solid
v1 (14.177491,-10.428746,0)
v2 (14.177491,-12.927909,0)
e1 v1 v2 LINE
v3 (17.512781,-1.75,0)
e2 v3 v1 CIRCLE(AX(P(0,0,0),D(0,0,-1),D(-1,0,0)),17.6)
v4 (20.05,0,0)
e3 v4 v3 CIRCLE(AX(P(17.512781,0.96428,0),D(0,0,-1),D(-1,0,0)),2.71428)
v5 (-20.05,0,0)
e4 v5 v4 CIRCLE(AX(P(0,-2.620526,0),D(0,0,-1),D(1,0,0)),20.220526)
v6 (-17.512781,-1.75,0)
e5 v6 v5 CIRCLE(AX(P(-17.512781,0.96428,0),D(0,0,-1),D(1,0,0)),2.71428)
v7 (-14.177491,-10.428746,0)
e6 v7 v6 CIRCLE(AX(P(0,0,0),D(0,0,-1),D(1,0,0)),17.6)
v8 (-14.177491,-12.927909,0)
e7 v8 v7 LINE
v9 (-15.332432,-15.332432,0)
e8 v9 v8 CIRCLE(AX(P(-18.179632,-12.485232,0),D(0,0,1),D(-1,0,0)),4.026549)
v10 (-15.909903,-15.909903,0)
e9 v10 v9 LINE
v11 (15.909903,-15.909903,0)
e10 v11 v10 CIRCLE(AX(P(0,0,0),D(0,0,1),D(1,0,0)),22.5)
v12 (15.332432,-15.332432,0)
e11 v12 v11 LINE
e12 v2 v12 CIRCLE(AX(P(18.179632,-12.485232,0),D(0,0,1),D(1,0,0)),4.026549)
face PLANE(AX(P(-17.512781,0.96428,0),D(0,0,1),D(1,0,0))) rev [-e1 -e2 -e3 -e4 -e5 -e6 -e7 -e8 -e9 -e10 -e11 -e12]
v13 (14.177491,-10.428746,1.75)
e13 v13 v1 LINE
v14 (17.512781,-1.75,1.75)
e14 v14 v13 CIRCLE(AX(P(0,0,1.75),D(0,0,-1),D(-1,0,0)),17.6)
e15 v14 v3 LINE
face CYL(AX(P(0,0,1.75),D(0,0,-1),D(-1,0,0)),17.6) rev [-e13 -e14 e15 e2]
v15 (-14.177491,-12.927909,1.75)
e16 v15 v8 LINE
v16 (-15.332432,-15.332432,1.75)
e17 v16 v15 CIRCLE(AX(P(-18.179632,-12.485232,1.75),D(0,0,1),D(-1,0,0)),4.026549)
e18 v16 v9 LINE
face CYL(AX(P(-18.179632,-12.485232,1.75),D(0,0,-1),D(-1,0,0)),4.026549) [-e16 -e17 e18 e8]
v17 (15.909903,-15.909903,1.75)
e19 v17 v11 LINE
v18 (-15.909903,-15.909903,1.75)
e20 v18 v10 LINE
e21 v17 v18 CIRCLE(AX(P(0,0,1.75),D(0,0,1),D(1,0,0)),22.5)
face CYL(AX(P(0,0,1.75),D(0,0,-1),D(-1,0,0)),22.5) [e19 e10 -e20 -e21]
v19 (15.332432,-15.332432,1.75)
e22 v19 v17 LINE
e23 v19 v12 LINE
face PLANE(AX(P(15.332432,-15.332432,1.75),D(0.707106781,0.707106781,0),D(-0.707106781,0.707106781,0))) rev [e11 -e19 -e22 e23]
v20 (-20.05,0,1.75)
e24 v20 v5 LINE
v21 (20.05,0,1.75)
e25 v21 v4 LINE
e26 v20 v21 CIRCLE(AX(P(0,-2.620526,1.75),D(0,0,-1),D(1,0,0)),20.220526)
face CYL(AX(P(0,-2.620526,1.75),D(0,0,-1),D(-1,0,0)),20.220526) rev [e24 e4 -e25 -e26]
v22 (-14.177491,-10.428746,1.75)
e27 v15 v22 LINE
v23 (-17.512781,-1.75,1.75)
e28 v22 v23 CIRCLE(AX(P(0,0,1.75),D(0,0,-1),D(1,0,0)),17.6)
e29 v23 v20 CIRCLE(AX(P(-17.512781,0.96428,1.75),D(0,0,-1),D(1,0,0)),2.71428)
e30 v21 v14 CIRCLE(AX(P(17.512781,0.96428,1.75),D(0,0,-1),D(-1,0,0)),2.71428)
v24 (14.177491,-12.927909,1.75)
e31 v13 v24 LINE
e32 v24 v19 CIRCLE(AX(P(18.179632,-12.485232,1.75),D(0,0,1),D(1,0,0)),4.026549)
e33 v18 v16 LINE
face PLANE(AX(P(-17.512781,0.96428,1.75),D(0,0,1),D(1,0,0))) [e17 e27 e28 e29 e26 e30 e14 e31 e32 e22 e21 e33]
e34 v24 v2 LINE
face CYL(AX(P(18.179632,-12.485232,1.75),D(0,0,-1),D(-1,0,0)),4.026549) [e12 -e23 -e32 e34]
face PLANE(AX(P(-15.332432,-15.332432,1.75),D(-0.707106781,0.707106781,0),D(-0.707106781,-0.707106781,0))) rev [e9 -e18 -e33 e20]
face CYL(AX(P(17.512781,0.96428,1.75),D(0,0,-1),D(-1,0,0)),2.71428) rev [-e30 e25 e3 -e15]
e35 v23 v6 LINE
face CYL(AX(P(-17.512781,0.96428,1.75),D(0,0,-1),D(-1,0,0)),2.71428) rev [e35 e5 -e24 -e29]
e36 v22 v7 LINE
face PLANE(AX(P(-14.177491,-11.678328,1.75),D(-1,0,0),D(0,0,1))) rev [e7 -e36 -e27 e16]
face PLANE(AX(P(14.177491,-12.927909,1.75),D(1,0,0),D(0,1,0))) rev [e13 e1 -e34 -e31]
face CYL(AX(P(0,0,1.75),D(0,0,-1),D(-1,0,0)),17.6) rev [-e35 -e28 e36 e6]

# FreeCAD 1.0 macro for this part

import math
import FreeCAD as App
import Part
import Sketcher
from FreeCAD import Vector

doc = App.newDocument("Part")
params = doc.addObject("Spreadsheet::Sheet", "Params")
for row, (alias, value) in enumerate([
    ("sketch1_radius", "17.6 mm"),
    ("sketch1_radius2", "22.5 mm"),
    ("pad1_length", "1.75 mm"),
], start=1):
    params.set(f"A{row}", alias)
    params.set(f"B{row}", "=" + value)
    params.setAlias(f"B{row}", alias)

body = doc.addObject("PartDesign::Body", "Body")

sketch1 = body.newObject("Sketcher::SketchObject", "Sketch")
sketch1.AttachmentSupport = (doc.getObject("XY_Plane"), [""])
sketch1.MapMode = "FlatFace"
sketch1.addGeometry([
    Part.LineSegment(Vector(-14.177491, -12.927909, 0), Vector(-14.177491, -10.428746, 0)),
    Part.ArcOfCircle(Part.Circle(Vector(0, 0, 0), Vector(0, 0, 1), 17.6), math.radians(-174.293547), math.radians(-143.662367)),
    Part.ArcOfCircle(Part.Circle(Vector(-17.512781, 0.96428, 0), Vector(0, 0, 1), 2.71428), math.radians(-159.19051), math.radians(-90)),
    Part.ArcOfCircle(Part.Circle(Vector(0, -2.620526, 0), Vector(0, 0, 1), 20.220526), math.radians(7.446323), math.radians(172.553677)),
    Part.ArcOfCircle(Part.Circle(Vector(17.512781, 0.96428, 0), Vector(0, 0, 1), 2.71428), math.radians(-90), math.radians(-20.80949)),
    Part.ArcOfCircle(Part.Circle(Vector(0, 0, 0), Vector(0, 0, 1), 17.6), math.radians(-36.337633), math.radians(-5.706453)),
    Part.LineSegment(Vector(14.177491, -10.428746, 0), Vector(14.177491, -12.927909, 0)),
    Part.ArcOfCircle(Part.Circle(Vector(18.179632, -12.485232, 0), Vector(0, 0, 1), 4.026549), math.radians(-173.688159), math.radians(-135)),
    Part.LineSegment(Vector(15.332432, -15.332432, 0), Vector(15.909903, -15.909903, 0)),
    Part.ArcOfCircle(Part.Circle(Vector(0, 0, 0), Vector(0, 0, 1), 22.5), math.radians(-45), math.radians(225)),
    Part.LineSegment(Vector(-15.909903, -15.909903, 0), Vector(-15.332432, -15.332432, 0)),
    Part.ArcOfCircle(Part.Circle(Vector(-18.179632, -12.485232, 0), Vector(0, 0, 1), 4.026549), math.radians(-45), math.radians(-6.311841)),
], False)
sketch1.addConstraint([
    Sketcher.Constraint("Coincident", 0, 2, 1, 2),
    Sketcher.Constraint("Coincident", 1, 1, 2, 2),
    Sketcher.Constraint("Coincident", 2, 1, 3, 2),
    Sketcher.Constraint("Coincident", 3, 1, 4, 2),
    Sketcher.Constraint("Coincident", 4, 1, 5, 2),
    Sketcher.Constraint("Coincident", 5, 1, 6, 1),
    Sketcher.Constraint("Coincident", 6, 2, 7, 1),
    Sketcher.Constraint("Tangent", 7, 2, 8, 1),
    Sketcher.Constraint("Coincident", 8, 2, 9, 1),
    Sketcher.Constraint("Coincident", 9, 2, 10, 1),
    Sketcher.Constraint("Tangent", 10, 2, 11, 1),
    Sketcher.Constraint("Coincident", 11, 2, 0, 1),
    Sketcher.Constraint("Vertical", 0),
    Sketcher.Constraint("Vertical", 6),
    Sketcher.Constraint("Coincident", 1, 3, -1, 1),
    Sketcher.Constraint("Coincident", 5, 3, -1, 1),
    Sketcher.Constraint("Coincident", 9, 3, -1, 1),
    Sketcher.Constraint("Equal", 2, 4),
    Sketcher.Constraint("Equal", 1, 5),
    Sketcher.Constraint("Equal", 7, 11),
    Sketcher.Constraint("Symmetric", 2, 1, 3, 1, -1, 1),
    Sketcher.Constraint("Symmetric", 2, 3, 4, 3, -2),
    Sketcher.Constraint("Symmetric", 7, 3, 11, 3, -2),
    Sketcher.Constraint("Perpendicular", 8, 10),
    Sketcher.Constraint("Horizontal", 0, 2, 5, 1),
    Sketcher.Constraint("Horizontal", 8, 2, 9, 2),
    Sketcher.Constraint("Vertical", 2, 3, 1, 1),
    Sketcher.Constraint("Radius", 1, 17.6),
    Sketcher.Constraint("Radius", 9, 22.5),
    Sketcher.Constraint("DistanceY", 1, 1, -1, 1, 1.75),
    Sketcher.Constraint("DistanceX", 2, 1, -1, 1, 20.05),
    Sketcher.Constraint("Radius", 7, 4.026549),
    Sketcher.Constraint("Radius", 3, 20.220526),
    Sketcher.Constraint("DistanceY", 0, 1, 0, 2, 2.499163),
    Sketcher.Constraint("DistanceY", 7, 3, -1, 1, 12.485232),
    Sketcher.Constraint("DistanceX", 0, 2, -1, 1, 14.177491),
])
sketch1.setExpression("Constraints[27]", "Params.sketch1_radius")
sketch1.setExpression("Constraints[28]", "Params.sketch1_radius2")
pad1 = body.newObject("PartDesign::Pad", "Pad")
pad1.Profile = sketch1
pad1.setExpression("Length", "Params.pad1_length")

doc.recompute()
